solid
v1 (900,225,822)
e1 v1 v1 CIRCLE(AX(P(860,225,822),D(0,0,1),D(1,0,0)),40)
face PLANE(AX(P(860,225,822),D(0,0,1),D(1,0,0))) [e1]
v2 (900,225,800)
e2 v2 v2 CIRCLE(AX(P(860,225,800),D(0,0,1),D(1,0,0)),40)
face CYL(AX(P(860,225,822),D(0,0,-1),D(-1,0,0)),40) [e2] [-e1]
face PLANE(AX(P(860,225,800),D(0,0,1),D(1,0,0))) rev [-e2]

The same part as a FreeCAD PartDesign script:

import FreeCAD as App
import Part
import Sketcher
Q = App.Units.Quantity

doc = App.newDocument("Part")
body = doc.addObject("PartDesign::Body", "Body")

# Sketch on XY plane
sketch1 = body.newObject("Sketcher::SketchObject", "Sketch")
sketch1.AttachmentSupport = (doc.getObject("XY_Plane"), [""])
sketch1.MapMode = "FlatFace"
sketch1.AttachmentOffset = App.Placement(App.Vector(0, 0, 800), App.Rotation())
sketch1.addGeometry(Part.Circle(App.Vector(860, 225, 0), App.Vector(0, 0, 1), 40), False)
sketch1.addConstraint([
    Sketcher.Constraint("Diameter", 0, Q("80 mm")),
    Sketcher.Constraint("DistanceX", -1, 1, 0, 3, Q("860 mm")),
    Sketcher.Constraint("DistanceY", -1, 1, 0, 3, Q("225 mm")),
])
pad1 = body.newObject("PartDesign::Pad", "Pad")
pad1.Profile = sketch1
pad1.Length = 22

doc.recompute()
